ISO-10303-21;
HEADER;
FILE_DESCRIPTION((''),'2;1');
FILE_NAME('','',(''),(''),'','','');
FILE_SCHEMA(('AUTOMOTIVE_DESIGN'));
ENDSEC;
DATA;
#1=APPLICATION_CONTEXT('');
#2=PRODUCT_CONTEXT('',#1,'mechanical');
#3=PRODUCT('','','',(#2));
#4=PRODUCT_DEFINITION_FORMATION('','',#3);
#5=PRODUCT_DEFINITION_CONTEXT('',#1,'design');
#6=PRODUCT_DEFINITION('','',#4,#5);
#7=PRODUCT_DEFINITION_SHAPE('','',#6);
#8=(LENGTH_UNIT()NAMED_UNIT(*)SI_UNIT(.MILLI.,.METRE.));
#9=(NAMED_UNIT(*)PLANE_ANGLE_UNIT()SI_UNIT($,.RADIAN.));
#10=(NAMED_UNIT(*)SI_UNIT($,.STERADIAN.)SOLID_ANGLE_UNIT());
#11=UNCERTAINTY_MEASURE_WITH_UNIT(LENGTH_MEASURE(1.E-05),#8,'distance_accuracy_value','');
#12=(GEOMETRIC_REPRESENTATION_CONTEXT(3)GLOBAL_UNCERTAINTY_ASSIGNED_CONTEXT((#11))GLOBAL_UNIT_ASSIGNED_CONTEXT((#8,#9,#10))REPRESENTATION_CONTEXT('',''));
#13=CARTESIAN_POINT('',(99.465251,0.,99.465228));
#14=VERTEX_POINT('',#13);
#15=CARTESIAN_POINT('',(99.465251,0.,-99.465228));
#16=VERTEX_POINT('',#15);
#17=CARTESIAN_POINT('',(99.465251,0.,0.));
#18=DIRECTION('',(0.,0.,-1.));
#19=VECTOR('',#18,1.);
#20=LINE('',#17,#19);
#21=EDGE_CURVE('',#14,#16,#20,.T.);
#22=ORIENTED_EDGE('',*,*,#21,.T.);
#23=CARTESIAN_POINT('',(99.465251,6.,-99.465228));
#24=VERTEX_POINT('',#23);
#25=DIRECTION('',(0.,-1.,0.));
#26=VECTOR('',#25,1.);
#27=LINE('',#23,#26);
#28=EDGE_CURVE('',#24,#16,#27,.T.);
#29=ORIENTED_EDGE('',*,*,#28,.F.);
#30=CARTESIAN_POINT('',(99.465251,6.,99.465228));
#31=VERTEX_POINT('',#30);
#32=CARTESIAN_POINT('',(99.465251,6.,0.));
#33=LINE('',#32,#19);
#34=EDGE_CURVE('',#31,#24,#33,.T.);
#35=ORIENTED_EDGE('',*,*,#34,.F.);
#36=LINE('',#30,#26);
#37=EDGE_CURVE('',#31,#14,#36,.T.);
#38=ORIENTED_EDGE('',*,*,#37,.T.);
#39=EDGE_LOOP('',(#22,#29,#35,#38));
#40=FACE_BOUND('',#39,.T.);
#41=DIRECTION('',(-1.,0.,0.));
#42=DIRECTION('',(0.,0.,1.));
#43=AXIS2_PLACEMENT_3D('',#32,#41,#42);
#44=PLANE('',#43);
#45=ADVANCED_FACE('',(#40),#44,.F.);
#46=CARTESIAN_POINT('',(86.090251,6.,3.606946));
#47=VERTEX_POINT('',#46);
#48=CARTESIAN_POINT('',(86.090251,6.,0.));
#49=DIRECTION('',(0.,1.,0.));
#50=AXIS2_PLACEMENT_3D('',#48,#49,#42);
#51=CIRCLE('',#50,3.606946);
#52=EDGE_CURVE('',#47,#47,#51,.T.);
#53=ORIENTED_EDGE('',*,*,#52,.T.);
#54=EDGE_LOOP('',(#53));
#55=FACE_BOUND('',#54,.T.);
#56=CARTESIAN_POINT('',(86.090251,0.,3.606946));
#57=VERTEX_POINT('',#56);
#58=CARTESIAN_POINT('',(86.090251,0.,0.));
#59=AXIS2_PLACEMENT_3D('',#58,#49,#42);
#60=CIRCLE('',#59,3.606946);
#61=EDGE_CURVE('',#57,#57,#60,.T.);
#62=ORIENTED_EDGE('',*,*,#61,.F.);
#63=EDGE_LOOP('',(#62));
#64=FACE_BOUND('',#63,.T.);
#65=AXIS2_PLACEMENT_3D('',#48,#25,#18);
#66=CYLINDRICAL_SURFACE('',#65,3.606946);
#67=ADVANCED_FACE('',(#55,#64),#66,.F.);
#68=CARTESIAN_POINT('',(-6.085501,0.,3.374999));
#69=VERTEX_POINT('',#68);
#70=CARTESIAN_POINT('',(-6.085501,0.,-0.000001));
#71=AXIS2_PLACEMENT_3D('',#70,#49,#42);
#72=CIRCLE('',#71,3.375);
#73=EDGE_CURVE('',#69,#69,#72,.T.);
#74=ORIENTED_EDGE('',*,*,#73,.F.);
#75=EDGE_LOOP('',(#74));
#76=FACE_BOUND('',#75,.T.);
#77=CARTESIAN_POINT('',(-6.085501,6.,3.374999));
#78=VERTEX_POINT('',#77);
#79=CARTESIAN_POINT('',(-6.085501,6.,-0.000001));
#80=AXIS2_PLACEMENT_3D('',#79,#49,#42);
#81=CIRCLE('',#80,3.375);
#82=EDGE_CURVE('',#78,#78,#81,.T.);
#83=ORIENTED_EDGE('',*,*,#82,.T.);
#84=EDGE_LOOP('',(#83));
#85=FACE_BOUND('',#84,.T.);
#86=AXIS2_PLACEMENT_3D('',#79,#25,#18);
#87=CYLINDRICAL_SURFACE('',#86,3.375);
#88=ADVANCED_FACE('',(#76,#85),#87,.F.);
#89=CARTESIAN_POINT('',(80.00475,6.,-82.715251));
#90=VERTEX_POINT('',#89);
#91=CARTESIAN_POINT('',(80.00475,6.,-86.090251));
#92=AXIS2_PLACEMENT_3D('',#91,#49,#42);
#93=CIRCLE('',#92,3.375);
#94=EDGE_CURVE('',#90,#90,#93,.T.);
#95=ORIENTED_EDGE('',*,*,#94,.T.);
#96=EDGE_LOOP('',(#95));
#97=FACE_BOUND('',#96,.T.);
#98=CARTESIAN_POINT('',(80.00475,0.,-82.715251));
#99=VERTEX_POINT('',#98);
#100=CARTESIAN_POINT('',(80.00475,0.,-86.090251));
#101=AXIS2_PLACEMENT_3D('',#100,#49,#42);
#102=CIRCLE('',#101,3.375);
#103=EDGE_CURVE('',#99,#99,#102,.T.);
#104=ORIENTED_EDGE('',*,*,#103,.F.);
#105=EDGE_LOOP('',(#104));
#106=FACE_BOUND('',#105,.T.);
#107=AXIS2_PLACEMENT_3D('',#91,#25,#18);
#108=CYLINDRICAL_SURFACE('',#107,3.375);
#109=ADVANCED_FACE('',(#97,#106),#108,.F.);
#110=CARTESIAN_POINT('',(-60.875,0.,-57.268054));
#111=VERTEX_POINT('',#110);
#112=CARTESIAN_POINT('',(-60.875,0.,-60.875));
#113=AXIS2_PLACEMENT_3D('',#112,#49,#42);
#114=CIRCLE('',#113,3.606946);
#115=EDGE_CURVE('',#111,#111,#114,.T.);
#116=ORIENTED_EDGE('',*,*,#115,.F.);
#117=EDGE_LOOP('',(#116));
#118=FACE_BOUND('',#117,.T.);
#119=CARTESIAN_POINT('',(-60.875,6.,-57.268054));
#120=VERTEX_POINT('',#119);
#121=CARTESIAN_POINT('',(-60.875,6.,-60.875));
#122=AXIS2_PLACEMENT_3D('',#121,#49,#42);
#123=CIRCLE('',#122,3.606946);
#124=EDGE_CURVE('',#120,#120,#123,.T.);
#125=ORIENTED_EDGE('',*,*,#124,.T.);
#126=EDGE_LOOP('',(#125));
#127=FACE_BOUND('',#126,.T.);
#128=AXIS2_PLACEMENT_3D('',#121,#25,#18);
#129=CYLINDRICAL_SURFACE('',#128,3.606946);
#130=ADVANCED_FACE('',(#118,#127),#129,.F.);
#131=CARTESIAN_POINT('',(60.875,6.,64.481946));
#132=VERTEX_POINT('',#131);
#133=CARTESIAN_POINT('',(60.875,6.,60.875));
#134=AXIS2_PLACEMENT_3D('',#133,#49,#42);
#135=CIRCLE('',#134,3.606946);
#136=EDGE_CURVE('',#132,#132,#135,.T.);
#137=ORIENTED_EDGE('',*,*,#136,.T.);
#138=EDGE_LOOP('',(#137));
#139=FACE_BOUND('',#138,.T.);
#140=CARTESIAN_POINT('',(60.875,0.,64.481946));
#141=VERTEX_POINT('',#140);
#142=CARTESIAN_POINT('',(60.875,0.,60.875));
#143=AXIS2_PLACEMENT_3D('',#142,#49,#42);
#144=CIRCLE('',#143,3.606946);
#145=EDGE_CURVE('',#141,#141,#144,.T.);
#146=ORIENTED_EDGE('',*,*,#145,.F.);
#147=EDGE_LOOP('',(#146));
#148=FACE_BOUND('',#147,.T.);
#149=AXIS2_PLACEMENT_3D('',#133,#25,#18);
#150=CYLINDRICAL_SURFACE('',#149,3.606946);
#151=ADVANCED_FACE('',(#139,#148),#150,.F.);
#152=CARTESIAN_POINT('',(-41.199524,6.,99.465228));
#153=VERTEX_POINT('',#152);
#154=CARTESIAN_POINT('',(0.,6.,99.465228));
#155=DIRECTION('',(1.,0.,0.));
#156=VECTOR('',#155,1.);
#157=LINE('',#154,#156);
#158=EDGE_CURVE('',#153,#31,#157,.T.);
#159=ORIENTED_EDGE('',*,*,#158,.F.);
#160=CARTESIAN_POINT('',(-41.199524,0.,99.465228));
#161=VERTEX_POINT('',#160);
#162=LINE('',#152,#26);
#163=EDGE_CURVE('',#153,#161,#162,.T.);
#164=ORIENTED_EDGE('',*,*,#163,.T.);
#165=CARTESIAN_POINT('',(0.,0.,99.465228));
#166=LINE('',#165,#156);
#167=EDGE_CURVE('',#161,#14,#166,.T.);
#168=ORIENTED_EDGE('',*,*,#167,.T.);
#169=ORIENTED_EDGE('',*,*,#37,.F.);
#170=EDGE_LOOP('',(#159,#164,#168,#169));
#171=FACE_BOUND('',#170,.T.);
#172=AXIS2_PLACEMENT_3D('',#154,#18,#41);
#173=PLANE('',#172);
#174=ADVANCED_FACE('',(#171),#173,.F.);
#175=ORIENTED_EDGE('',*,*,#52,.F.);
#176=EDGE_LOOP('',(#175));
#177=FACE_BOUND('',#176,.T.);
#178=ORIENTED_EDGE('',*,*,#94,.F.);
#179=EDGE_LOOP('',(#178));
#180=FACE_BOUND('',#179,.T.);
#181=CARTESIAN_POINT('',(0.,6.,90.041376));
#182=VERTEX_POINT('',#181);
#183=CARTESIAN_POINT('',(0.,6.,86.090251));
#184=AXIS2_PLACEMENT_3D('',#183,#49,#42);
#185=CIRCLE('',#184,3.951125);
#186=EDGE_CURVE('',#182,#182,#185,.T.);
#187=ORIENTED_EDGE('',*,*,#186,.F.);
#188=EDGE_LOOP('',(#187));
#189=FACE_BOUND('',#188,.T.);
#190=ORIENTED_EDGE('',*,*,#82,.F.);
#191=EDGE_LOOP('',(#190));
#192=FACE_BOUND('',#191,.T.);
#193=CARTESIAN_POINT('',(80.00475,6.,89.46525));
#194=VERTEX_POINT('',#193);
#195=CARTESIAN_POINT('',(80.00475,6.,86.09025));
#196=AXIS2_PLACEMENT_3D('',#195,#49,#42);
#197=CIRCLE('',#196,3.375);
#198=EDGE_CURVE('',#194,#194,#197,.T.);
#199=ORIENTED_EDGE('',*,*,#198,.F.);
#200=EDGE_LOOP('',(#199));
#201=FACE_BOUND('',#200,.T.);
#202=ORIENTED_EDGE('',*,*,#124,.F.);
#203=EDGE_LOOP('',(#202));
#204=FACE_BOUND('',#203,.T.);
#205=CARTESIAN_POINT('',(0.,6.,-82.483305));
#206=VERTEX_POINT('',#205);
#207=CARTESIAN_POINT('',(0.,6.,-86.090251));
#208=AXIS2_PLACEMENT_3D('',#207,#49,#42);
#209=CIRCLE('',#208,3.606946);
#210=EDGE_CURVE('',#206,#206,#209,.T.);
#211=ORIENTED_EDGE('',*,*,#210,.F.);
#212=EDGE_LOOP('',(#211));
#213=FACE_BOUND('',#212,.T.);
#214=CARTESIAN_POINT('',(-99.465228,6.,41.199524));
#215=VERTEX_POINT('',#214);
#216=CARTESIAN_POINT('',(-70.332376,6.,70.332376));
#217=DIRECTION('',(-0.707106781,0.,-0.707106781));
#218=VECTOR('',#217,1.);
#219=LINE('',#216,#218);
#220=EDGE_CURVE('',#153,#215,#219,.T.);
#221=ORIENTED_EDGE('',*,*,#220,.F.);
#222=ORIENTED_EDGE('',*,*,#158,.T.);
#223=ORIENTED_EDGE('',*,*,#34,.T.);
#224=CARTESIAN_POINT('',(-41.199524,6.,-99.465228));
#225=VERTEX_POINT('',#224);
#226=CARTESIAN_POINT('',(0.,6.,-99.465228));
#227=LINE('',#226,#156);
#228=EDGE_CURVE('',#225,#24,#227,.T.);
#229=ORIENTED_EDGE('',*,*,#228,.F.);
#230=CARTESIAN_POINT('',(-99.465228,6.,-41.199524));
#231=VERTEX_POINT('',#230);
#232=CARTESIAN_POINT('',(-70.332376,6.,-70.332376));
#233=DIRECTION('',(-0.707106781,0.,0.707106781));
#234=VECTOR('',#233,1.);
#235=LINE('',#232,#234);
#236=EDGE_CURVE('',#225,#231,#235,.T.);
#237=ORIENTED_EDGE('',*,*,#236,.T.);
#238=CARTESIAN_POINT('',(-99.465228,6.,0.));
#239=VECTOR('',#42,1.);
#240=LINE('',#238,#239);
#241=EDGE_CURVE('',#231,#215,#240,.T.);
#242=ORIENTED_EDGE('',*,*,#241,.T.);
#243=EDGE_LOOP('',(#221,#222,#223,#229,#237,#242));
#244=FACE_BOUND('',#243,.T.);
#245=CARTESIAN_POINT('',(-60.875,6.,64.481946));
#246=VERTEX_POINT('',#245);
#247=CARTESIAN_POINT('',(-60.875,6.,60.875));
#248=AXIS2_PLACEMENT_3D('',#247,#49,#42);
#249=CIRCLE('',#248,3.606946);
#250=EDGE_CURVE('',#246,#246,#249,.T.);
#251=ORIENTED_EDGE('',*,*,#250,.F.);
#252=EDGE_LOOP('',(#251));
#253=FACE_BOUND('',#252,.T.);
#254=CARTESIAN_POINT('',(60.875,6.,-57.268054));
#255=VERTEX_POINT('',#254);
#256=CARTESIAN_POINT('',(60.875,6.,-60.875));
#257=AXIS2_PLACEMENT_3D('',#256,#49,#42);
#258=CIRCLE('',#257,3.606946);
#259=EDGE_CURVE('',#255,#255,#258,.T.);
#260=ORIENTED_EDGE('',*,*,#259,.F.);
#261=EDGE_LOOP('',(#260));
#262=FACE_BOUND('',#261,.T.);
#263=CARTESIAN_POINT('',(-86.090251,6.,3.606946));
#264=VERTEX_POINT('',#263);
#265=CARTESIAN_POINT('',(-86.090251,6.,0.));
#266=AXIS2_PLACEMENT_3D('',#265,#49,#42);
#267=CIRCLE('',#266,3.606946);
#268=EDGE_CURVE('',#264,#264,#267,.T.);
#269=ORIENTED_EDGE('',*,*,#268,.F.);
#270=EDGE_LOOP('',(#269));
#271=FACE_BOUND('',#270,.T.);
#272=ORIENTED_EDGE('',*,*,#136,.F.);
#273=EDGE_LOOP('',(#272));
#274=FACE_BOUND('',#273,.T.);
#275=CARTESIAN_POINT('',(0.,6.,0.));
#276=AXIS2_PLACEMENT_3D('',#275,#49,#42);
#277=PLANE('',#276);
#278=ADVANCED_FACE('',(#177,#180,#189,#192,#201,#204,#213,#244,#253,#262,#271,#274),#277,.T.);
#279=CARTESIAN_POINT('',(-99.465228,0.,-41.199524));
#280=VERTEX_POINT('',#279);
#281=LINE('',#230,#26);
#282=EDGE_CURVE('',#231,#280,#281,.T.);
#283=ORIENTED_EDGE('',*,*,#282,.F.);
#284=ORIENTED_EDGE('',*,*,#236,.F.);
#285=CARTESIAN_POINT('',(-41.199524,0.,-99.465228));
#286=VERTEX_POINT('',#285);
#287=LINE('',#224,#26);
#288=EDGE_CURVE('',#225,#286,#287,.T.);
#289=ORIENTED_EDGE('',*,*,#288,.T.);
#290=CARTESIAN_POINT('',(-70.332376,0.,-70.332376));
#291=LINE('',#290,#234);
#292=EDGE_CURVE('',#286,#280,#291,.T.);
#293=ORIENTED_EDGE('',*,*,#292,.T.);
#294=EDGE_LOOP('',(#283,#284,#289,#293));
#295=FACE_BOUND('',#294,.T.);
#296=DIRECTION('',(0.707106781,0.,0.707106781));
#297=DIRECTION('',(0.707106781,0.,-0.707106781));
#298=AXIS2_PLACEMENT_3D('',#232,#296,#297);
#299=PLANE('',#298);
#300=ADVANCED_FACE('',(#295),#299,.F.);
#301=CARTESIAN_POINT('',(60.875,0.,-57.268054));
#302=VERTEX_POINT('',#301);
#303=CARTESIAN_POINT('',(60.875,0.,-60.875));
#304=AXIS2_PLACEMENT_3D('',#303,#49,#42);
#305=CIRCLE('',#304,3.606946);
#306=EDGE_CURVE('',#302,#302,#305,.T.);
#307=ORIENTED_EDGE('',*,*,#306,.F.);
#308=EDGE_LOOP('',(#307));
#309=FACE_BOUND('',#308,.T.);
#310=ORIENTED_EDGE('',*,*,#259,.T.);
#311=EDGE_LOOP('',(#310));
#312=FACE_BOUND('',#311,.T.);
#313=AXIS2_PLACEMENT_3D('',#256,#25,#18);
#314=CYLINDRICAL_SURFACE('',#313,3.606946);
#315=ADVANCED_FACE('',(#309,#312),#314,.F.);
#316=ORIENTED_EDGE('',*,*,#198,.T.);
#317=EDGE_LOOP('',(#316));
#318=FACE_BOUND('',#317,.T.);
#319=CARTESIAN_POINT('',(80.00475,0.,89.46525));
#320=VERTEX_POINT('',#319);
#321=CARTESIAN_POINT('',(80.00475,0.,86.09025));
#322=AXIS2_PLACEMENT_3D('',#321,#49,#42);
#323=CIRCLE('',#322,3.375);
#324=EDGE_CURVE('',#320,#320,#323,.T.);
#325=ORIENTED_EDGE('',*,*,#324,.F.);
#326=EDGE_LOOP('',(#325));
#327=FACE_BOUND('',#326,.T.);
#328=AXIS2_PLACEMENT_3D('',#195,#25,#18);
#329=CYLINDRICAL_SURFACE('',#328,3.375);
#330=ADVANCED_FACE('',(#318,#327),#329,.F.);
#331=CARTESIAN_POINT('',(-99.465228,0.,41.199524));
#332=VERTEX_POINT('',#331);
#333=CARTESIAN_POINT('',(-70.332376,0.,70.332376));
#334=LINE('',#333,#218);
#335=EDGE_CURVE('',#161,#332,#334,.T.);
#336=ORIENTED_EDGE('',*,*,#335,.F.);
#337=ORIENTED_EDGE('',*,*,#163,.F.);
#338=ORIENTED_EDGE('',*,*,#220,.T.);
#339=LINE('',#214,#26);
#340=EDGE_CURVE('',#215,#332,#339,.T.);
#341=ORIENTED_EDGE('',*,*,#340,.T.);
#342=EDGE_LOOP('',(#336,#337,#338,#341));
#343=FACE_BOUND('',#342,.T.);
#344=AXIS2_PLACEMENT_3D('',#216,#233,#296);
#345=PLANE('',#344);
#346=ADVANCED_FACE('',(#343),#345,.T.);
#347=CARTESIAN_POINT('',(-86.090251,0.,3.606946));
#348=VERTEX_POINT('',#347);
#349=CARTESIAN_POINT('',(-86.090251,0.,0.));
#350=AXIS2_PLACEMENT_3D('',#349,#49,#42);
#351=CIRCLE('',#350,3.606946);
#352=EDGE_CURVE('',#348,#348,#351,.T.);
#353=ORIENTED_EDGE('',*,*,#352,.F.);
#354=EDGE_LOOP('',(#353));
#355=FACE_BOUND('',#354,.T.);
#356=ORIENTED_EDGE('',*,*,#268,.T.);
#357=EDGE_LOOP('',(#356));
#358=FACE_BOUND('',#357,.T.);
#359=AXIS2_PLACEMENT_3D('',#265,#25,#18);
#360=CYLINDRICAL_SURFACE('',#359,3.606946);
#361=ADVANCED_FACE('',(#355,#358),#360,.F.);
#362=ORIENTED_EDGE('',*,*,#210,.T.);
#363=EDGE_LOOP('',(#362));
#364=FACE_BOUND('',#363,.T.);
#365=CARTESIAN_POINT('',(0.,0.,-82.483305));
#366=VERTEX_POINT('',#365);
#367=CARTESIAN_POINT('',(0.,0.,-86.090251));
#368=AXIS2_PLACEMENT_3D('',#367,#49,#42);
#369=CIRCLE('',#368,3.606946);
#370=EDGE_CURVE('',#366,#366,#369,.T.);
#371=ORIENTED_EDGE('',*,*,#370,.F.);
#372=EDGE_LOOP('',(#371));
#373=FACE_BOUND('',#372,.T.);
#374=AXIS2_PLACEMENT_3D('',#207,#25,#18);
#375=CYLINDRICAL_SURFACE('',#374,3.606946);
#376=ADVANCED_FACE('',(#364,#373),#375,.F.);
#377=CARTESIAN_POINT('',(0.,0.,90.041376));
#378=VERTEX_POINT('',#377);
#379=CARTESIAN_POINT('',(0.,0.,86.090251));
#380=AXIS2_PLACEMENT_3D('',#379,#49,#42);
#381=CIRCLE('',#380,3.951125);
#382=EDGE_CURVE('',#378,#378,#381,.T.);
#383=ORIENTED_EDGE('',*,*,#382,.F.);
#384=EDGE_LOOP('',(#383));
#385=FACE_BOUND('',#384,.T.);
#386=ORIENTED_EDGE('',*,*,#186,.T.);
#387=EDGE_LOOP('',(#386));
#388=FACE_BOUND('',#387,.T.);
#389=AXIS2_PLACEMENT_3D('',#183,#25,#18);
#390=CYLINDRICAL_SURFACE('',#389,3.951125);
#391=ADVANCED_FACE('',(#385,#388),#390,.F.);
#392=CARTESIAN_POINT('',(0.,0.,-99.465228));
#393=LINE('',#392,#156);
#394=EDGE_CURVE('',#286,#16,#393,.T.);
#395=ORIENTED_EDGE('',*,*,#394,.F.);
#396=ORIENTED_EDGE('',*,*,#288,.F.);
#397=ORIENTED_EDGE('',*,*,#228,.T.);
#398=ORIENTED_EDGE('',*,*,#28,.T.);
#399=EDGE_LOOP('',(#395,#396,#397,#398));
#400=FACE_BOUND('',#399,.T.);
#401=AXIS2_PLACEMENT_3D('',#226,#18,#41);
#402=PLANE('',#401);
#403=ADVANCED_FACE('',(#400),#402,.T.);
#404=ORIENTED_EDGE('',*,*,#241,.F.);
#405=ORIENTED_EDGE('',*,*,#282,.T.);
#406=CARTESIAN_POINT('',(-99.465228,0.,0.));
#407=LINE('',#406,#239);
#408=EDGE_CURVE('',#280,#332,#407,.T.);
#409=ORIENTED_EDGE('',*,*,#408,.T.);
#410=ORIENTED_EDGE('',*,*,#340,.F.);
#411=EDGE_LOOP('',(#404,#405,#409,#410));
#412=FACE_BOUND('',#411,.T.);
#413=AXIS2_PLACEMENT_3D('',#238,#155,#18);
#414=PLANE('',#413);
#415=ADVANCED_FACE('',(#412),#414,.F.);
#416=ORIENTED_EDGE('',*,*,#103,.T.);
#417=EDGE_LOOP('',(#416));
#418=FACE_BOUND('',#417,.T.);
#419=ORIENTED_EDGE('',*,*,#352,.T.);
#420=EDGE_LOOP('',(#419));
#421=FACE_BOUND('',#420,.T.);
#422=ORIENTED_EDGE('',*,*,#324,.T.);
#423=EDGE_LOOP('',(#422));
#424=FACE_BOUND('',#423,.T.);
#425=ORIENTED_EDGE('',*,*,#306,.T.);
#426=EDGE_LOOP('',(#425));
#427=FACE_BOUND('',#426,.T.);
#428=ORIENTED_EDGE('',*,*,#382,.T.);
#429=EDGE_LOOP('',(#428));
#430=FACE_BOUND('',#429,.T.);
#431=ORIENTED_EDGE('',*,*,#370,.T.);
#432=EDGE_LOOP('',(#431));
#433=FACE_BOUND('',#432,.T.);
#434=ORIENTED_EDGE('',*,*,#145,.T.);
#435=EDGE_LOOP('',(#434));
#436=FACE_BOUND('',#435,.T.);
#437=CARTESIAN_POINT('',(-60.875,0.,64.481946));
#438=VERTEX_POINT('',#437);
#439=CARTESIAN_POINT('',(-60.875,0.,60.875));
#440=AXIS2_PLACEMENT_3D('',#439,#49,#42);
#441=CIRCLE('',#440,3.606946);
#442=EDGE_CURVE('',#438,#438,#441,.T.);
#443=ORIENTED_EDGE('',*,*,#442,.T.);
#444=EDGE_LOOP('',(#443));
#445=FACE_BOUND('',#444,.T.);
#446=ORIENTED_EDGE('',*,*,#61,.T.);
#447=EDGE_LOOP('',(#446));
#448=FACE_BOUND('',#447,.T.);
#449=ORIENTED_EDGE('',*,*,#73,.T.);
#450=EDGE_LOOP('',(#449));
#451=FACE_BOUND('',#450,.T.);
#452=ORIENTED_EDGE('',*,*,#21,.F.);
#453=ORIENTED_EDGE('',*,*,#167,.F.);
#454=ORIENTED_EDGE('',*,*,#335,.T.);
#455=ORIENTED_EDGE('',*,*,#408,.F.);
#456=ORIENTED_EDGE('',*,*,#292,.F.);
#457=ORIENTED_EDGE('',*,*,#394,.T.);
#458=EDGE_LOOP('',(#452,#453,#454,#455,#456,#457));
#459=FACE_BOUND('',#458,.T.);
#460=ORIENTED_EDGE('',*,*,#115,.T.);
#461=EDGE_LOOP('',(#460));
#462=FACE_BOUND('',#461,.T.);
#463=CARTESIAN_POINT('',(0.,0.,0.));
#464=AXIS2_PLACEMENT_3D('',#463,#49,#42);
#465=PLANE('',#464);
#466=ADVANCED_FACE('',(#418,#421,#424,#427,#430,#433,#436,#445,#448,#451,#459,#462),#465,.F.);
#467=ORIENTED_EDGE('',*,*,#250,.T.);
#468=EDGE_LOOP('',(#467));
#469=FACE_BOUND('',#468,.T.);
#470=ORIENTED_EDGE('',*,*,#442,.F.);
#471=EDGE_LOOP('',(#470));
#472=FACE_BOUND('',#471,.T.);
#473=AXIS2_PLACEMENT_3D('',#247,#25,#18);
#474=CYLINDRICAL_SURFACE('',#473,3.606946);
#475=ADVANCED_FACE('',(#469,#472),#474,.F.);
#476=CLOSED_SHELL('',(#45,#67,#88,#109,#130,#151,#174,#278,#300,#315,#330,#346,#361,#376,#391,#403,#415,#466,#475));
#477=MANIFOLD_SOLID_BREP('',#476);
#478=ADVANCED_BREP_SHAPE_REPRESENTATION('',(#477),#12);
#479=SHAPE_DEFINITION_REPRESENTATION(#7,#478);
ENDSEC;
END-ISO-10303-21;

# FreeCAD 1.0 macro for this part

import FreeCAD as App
import Part
import Sketcher

V = App.Vector

doc = App.newDocument("Part")
body = doc.addObject("PartDesign::Body", "Body")

# Sketch on XZ plane
sketch1 = doc.addObject("Sketcher::SketchObject", "Sketch")
body.addObject(sketch1)
sketch1.AttachmentSupport = (doc.XZ_Plane, [""])
sketch1.MapMode = "FlatFace"
sketch1.addGeometry([
    Part.LineSegment(V(99.5, -99.5, 0), V(-41.2, -99.5, 0)),  # 0
    Part.LineSegment(V(-41.2, -99.5, 0), V(-99.5, -41.2, 0)),  # 1
    Part.LineSegment(V(-99.5, -41.2, 0), V(-99.5, 41.2, 0)),  # 2
    Part.LineSegment(V(-99.5, 41.2, 0), V(-41.2, 99.5, 0)),  # 3
    Part.LineSegment(V(-41.2, 99.5, 0), V(99.5, 99.5, 0)),  # 4
    Part.LineSegment(V(99.5, 99.5, 0), V(99.5, -99.5, 0)),  # 5
    Part.Circle(V(80, 86.1, 0), V(0, 0, 1), 3.4),  # 6
    Part.Circle(V(60.9, 60.9, 0), V(0, 0, 1), 3.6),  # 7
    Part.Circle(V(0, 86.1, 0), V(0, 0, 1), 4),  # 8
    Part.Circle(V(-60.9, 60.9, 0), V(0, 0, 1), 3.6),  # 9
    Part.Circle(V(86.1, 0, 0), V(0, 0, 1), 3.6),  # 10
    Part.Circle(V(60.9, -60.9, 0), V(0, 0, 1), 3.6),  # 11
    Part.Circle(V(80, -86.1, 0), V(0, 0, 1), 3.4),  # 12
    Part.Circle(V(-6.1, 0, 0), V(0, 0, 1), 3.4),  # 13
    Part.Circle(V(-86.1, 0, 0), V(0, 0, 1), 3.6),  # 14
    Part.Circle(V(0, -86.1, 0), V(0, 0, 1), 3.6),  # 15
    Part.Circle(V(-60.9, -60.9, 0), V(0, 0, 1), 3.6),  # 16
], False)
sketch1.addConstraint([
    Sketcher.Constraint("Coincident", 0, 2, 1, 1),
    Sketcher.Constraint("Coincident", 1, 2, 2, 1),
    Sketcher.Constraint("Coincident", 2, 2, 3, 1),
    Sketcher.Constraint("Coincident", 3, 2, 4, 1),
    Sketcher.Constraint("Coincident", 4, 2, 5, 1),
    Sketcher.Constraint("Coincident", 5, 2, 0, 1),
    Sketcher.Constraint("Horizontal", 0),
    Sketcher.Constraint("Vertical", 2),
    Sketcher.Constraint("Horizontal", 4),
    Sketcher.Constraint("Vertical", 5),
    Sketcher.Constraint("Equal", 7, 9),
    Sketcher.Constraint("Equal", 9, 10),
    Sketcher.Constraint("Equal", 10, 11),
    Sketcher.Constraint("Equal", 6, 12),
    Sketcher.Constraint("Equal", 12, 13),
    Sketcher.Constraint("Equal", 11, 14),
    Sketcher.Constraint("Equal", 14, 15),
    Sketcher.Constraint("Equal", 15, 16),
    Sketcher.Constraint("Symmetric", 9, 3, 11, 3, -1, 1),
    Sketcher.Constraint("Symmetric", 10, 3, 14, 3, -1, 1),
    Sketcher.Constraint("Symmetric", 8, 3, 15, 3, -1, 1),
    Sketcher.Constraint("Symmetric", 7, 3, 16, 3, -1, 1),
    Sketcher.Constraint("Symmetric", 7, 3, 9, 3, -2),
    Sketcher.Constraint("Symmetric", 6, 3, 12, 3, -1),
    Sketcher.Constraint("Symmetric", 0, 2, 3, 2, -1),
    Sketcher.Constraint("PointOnObject", 8, 3, -2),
    Sketcher.Constraint("PointOnObject", 10, 3, -1),
    Sketcher.Constraint("PointOnObject", 13, 3, -1),
    Sketcher.Constraint("Perpendicular", 1, 3),
    Sketcher.Constraint("Horizontal", 6, 3, 8, 3),
    Sketcher.Constraint("Equal", 1, 3),
    Sketcher.Constraint("Diameter", 6, 6.75),
    Sketcher.Constraint("Diameter", 7, 7.213891),
    Sketcher.Constraint("Diameter", 8, 7.90225),
    Sketcher.Constraint("DistanceX", 9, 3, 7, 3, 121.75),
    Sketcher.Constraint("DistanceY", 11, 3, 7, 3, 121.75),
    Sketcher.Constraint("DistanceX", 10, 3, 4, 2, 13.375),
    Sketcher.Constraint("DistanceY", 2, 1, 2, 2, 82.399049),
    Sketcher.Constraint("DistanceX", 13, 3, -1, 1, 6.085501),
    Sketcher.Constraint("DistanceX", 6, 3, 10, 3, 6.085501),
    Sketcher.Constraint("DistanceY", 12, 3, 6, 3, 172.180501),
    Sketcher.Constraint("DistanceX", 0, 2, 0, 1, 140.664775),
    Sketcher.Constraint("DistanceY", 5, 2, 5, 1, 198.930455),
    Sketcher.Constraint("DistanceX", -1, 1, 6, 3, 80.00475),
])
pad1 = doc.addObject("PartDesign::Pad", "Pad")
body.addObject(pad1)
pad1.Profile = sketch1
pad1.Length = 6
pad1.Reversed = True

doc.recompute()
